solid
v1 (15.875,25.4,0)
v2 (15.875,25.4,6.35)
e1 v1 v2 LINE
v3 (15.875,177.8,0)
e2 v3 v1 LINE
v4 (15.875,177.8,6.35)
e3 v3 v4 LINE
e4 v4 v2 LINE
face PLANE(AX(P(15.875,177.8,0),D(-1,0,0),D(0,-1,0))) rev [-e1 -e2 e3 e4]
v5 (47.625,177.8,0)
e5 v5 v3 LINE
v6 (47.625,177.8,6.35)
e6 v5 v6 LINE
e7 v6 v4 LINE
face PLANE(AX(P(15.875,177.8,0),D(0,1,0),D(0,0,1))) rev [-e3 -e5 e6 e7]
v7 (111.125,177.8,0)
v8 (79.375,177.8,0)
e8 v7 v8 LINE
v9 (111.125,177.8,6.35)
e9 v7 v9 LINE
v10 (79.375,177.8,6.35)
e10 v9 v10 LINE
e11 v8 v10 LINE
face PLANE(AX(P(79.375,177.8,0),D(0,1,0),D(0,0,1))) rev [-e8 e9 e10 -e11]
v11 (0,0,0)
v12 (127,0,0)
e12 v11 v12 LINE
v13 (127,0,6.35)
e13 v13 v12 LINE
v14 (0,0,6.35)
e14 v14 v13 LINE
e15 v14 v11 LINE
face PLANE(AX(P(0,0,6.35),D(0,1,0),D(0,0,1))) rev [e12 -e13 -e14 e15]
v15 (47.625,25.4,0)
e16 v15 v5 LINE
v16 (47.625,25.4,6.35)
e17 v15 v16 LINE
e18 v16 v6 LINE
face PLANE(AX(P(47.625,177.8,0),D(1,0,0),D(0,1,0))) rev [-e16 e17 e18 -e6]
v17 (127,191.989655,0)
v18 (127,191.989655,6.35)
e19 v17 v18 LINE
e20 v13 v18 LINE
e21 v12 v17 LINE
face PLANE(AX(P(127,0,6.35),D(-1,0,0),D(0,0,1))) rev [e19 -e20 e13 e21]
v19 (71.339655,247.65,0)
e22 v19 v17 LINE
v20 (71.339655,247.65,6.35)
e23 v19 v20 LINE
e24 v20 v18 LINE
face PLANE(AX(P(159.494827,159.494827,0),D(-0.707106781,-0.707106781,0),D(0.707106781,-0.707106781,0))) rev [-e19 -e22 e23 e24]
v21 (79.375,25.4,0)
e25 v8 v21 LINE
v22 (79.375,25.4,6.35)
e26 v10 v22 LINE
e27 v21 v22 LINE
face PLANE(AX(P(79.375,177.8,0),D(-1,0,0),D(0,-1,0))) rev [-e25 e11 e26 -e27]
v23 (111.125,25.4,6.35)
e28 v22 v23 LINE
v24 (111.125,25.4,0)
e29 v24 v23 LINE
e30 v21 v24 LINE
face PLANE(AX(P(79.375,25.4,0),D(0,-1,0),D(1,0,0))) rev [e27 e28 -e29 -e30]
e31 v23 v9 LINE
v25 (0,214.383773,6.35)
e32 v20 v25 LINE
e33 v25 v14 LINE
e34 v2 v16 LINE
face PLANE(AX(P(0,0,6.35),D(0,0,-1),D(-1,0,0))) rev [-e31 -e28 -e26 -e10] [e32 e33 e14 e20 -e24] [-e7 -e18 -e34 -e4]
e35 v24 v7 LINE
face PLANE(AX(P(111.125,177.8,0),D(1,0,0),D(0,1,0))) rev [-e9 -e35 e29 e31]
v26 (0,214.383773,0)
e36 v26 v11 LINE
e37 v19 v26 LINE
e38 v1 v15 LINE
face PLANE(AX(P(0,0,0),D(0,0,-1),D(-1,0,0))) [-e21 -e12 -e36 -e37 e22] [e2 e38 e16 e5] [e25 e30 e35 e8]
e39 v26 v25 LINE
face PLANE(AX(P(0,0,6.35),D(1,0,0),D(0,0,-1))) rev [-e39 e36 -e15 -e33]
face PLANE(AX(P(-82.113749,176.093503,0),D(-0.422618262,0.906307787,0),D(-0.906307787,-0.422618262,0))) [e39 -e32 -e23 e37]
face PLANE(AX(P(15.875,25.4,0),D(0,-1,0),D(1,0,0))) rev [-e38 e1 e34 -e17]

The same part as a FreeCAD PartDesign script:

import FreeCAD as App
import Part
import Sketcher

V = App.Vector
Q = App.Units.Quantity


def add_polygon(sketch, points):
    """Adds a closed chain of lines whose ends are joined by coincident constraints."""
    first, n = sketch.GeometryCount, len(points)
    for a, b in zip(points, points[1:] + points[:1]):
        sketch.addGeometry(Part.LineSegment(App.Vector(*a, 0), App.Vector(*b, 0)), False)
    for i in range(n):
        sketch.addConstraint(Sketcher.Constraint("Coincident", first + i, 2, first + (i + 1) % n, 1))

doc = App.newDocument("Part")
params = doc.addObject("Spreadsheet::Sheet", "Params")
for row, (alias, value) in enumerate([
    ("sketch1_width", "5 in"),
    ("sketch1_height", "9.75 in"),
    ("pad1_length", "0.25 in"),
    ("sketch2_length", "3.099 in"),
    ("sketch3_height", "6 in"),
    ("sketch3_width", "1.25 in"),
], start=1):
    params.set(f"A{row}", alias)
    params.set(f"B{row}", "=" + value)
    params.setAlias(f"B{row}", alias)

body = doc.addObject("PartDesign::Body", "Body")

# Sketch on XY plane
sketch1 = doc.addObject("Sketcher::SketchObject", "Sketch")
body.addObject(sketch1)
sketch1.AttachmentSupport = (doc.XY_Plane, [""])
sketch1.MapMode = "FlatFace"
add_polygon(sketch1, [(0, 248), (0, 0), (127, 0), (127, 248)])  # lines 0-3
sketch1.addConstraint([
    Sketcher.Constraint("Vertical", 0),
    Sketcher.Constraint("Horizontal", 1),
    Sketcher.Constraint("Vertical", 2),
    Sketcher.Constraint("Horizontal", 3),
    Sketcher.Constraint("Coincident", 0, 2, -1, 1),
    Sketcher.Constraint("DistanceX", 1, 1, 1, 2, Q("5 in")),
    Sketcher.Constraint("DistanceY", 0, 2, 0, 1, Q("9.75 in")),
])
sketch1.setExpression("Constraints[9]", "Params.sketch1_width")
sketch1.setExpression("Constraints[10]", "Params.sketch1_height")
pad1 = doc.addObject("PartDesign::Pad", "Pad")
body.addObject(pad1)
pad1.Profile = sketch1
pad1.setExpression("Length", "Params.pad1_length")

# Sketch on XY plane
sketch2 = doc.addObject("Sketcher::SketchObject", "Sketch001")
body.addObject(sketch2)
sketch2.AttachmentSupport = (doc.XY_Plane, [""])
sketch2.MapMode = "FlatFace"
sketch2.AttachmentOffset = App.Placement(V(0, 0, 0.25 * 25.4), App.Rotation())
add_polygon(sketch2, [(0, 214), (71, 248), (0, 248)])  # lines 0-2
add_polygon(sketch2, [(127, 248), (71, 248), (127, 192)])  # lines 3-5
sketch2.addConstraint([
    Sketcher.Constraint("Horizontal", 1),
    Sketcher.Constraint("Vertical", 2),
    Sketcher.Constraint("Horizontal", 3),
    Sketcher.Constraint("Vertical", 5),
    Sketcher.Constraint("Coincident", 3, 2, 0, 2),
    Sketcher.Constraint("PointOnObject", 1, 2, -2),
    Sketcher.Constraint("Equal", 3, 5),
    Sketcher.Constraint("DistanceX", -1, 1, 4, 2, Q("5 in")),
    Sketcher.Constraint("Angle", 0, Q("25 deg")),
    Sketcher.Constraint("DistanceY", -1, 1, 0, 2, Q("9.75 in")),
    Sketcher.Constraint("Distance", 0, Q("3.099 in")),
])
sketch2.setExpression("Constraints[16]", "Params.sketch2_length")
pocket1 = doc.addObject("PartDesign::Pocket", "Pocket")
body.addObject(pocket1)
pocket1.Profile = sketch2
pocket1.Type = "ThroughAll"

# Sketch on XY plane
sketch3 = doc.addObject("Sketcher::SketchObject", "Sketch002")
body.addObject(sketch3)
sketch3.AttachmentSupport = (doc.XY_Plane, [""])
sketch3.MapMode = "FlatFace"
sketch3.AttachmentOffset = App.Placement(V(0, 0, 0.25 * 25.4), App.Rotation())
add_polygon(sketch3, [(16, 178), (16, 25), (48, 25), (48, 178)])  # lines 0-3
add_polygon(sketch3, [(79, 178), (79, 25), (111, 25), (111, 178)])  # lines 4-7
sketch3.addConstraint([
    Sketcher.Constraint("Vertical", 0),
    Sketcher.Constraint("Horizontal", 1),
    Sketcher.Constraint("Vertical", 2),
    Sketcher.Constraint("Horizontal", 3),
    Sketcher.Constraint("Vertical", 4),
    Sketcher.Constraint("Horizontal", 5),
    Sketcher.Constraint("Vertical", 6),
    Sketcher.Constraint("Horizontal", 7),
    Sketcher.Constraint("Horizontal", 1, 2, 4, 2),
    Sketcher.Constraint("Horizontal", 3, 2, 6, 2),
    Sketcher.Constraint("Equal", 3, 5),
    Sketcher.Constraint("DistanceY", 0, 2, 0, 1, Q("6 in")),
    Sketcher.Constraint("DistanceY", -1, 1, 0, 2, Q("1 in")),
    Sketcher.Constraint("DistanceX", 1, 1, 1, 2, Q("1.25 in")),
    Sketcher.Constraint("DistanceX", 0, 2, 4, 2, Q("2.5 in")),
    Sketcher.Constraint("DistanceX", -1, 1, 0, 2, Q("0.625 in")),
])
sketch3.setExpression("Constraints[19]", "Params.sketch3_height")
sketch3.setExpression("Constraints[21]", "Params.sketch3_width")
pocket2 = doc.addObject("PartDesign::Pocket", "Pocket001")
body.addObject(pocket2)
pocket2.Profile = sketch3
pocket2.Type = "ThroughAll"

doc.recompute()
